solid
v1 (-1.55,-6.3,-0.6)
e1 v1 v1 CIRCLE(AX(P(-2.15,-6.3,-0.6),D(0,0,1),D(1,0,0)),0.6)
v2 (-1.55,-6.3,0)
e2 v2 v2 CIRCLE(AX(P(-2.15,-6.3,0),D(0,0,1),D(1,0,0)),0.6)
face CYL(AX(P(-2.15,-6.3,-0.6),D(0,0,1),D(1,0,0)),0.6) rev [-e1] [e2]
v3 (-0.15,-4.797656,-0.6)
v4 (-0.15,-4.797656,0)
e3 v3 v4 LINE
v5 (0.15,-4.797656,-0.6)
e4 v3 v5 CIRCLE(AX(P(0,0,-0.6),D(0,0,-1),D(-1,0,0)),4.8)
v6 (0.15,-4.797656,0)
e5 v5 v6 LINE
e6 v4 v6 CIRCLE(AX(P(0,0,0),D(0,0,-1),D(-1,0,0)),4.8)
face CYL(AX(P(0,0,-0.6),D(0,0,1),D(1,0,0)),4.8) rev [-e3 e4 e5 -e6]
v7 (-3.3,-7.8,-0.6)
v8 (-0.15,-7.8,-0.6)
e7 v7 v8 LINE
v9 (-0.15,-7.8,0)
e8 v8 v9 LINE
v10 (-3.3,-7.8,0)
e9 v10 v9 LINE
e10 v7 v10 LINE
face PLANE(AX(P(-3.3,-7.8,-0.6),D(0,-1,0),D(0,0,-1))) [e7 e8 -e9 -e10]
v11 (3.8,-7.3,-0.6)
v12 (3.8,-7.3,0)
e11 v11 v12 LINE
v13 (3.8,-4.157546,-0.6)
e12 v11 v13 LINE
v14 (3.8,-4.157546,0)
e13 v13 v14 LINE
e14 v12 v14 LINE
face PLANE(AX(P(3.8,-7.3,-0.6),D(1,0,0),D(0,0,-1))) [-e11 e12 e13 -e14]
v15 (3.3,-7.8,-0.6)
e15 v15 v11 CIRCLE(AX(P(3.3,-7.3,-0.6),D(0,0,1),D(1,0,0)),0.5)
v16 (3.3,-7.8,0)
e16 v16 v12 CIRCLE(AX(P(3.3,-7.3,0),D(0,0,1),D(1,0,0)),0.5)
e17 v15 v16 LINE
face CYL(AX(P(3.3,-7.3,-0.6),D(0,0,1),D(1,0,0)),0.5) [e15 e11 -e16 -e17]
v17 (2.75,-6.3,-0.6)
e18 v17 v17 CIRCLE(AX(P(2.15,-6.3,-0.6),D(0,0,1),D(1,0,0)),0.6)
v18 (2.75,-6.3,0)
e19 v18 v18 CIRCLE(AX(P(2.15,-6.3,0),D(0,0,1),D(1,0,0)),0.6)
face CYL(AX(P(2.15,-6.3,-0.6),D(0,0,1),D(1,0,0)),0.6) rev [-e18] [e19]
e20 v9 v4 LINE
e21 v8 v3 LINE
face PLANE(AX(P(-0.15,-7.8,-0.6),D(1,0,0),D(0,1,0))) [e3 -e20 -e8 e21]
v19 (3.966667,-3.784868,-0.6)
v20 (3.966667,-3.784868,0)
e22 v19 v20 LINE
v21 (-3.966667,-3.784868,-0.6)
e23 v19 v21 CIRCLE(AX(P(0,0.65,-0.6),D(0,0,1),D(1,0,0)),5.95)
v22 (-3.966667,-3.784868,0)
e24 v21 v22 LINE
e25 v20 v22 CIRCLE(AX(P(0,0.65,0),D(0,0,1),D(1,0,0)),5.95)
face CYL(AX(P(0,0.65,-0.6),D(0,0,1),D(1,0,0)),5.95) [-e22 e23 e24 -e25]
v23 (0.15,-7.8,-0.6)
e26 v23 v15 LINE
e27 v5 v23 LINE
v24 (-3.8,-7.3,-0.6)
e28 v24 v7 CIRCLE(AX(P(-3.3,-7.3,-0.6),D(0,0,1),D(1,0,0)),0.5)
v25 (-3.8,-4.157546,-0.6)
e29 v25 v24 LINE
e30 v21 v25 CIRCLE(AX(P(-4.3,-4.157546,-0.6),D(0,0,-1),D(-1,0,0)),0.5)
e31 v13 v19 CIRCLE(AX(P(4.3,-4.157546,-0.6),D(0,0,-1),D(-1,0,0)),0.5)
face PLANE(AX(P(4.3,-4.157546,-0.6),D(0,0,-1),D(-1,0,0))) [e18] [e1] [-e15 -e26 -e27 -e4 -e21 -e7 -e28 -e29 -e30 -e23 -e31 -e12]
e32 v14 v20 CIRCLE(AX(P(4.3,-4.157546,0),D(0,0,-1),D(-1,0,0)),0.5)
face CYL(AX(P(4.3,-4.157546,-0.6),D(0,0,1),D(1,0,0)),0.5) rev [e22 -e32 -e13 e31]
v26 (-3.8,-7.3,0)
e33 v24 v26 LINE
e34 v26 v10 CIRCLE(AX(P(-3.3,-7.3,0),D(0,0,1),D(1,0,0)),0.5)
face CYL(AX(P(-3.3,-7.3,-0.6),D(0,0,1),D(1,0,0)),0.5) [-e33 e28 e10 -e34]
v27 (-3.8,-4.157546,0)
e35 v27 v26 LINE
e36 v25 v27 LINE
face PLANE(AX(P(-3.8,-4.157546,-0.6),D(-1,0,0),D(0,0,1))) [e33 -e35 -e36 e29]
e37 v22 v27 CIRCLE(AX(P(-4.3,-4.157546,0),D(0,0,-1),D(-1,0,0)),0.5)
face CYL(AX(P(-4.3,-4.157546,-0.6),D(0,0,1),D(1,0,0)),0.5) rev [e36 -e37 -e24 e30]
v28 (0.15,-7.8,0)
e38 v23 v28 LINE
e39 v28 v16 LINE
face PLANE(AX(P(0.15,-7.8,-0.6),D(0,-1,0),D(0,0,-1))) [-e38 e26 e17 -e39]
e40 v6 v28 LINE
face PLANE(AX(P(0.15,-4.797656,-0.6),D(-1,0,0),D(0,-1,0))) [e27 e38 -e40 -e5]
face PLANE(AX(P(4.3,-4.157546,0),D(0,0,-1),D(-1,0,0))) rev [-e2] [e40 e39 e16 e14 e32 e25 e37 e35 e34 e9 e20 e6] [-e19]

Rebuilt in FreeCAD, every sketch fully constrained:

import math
import FreeCAD as App
import Part
import Sketcher

doc = App.newDocument("Part")
body = doc.addObject("PartDesign::Body", "Body")

# Sketch on XY plane
sketch1 = body.newObject("Sketcher::SketchObject", "Sketch")
sketch1.AttachmentSupport = (doc.getObject("XY_Plane"), [""])
sketch1.MapMode = "FlatFace"
sketch1.addGeometry(Part.LineSegment(App.Vector(-3.8, -4.157546, 0), App.Vector(-3.8, -7.3, 0)), False)
sketch1.addGeometry(Part.ArcOfCircle(Part.Circle(App.Vector(-3.3, -7.3, 0), App.Vector(0, 0, 1), 0.5), math.radians(180), math.radians(270)), False)
sketch1.addGeometry(Part.LineSegment(App.Vector(-3.3, -7.8, 0), App.Vector(-0.15, -7.8, 0)), False)
sketch1.addGeometry(Part.LineSegment(App.Vector(-0.15, -7.8, 0), App.Vector(-0.15, -4.797656, 0)), False)
sketch1.addGeometry(Part.ArcOfCircle(Part.Circle(App.Vector(0, 0, 0), App.Vector(0, 0, 1), 4.8), math.radians(-88.209215), math.radians(268.209215)), False)
sketch1.addGeometry(Part.LineSegment(App.Vector(0.15, -4.797656, 0), App.Vector(0.15, -7.8, 0)), False)
sketch1.addGeometry(Part.LineSegment(App.Vector(0.15, -7.8, 0), App.Vector(3.3, -7.8, 0)), False)
sketch1.addGeometry(Part.ArcOfCircle(Part.Circle(App.Vector(3.3, -7.3, 0), App.Vector(0, 0, 1), 0.5), math.radians(-90), math.radians(0)), False)
sketch1.addGeometry(Part.LineSegment(App.Vector(3.8, -7.3, 0), App.Vector(3.8, -4.157546, 0)), False)
sketch1.addGeometry(Part.ArcOfCircle(Part.Circle(App.Vector(4.3, -4.157546, 0), App.Vector(0, 0, 1), 0.5), math.radians(131.810315), math.radians(180)), False)
sketch1.addGeometry(Part.ArcOfCircle(Part.Circle(App.Vector(0, 0.65, 0), App.Vector(0, 0, 1), 5.95), math.radians(-48.189685), math.radians(228.189685)), False)
sketch1.addGeometry(Part.ArcOfCircle(Part.Circle(App.Vector(-4.3, -4.157546, 0), App.Vector(0, 0, 1), 0.5), math.radians(0), math.radians(48.189685)), False)
sketch1.addConstraint(Sketcher.Constraint("Tangent", 0, 2, 1, 1))
sketch1.addConstraint(Sketcher.Constraint("Tangent", 1, 2, 2, 1))
sketch1.addConstraint(Sketcher.Constraint("Coincident", 2, 2, 3, 1))
sketch1.addConstraint(Sketcher.Constraint("Coincident", 3, 2, 4, 2))
sketch1.addConstraint(Sketcher.Constraint("Coincident", 4, 1, 5, 1))
sketch1.addConstraint(Sketcher.Constraint("Coincident", 5, 2, 6, 1))
sketch1.addConstraint(Sketcher.Constraint("Tangent", 6, 2, 7, 1))
sketch1.addConstraint(Sketcher.Constraint("Tangent", 7, 2, 8, 1))
sketch1.addConstraint(Sketcher.Constraint("Tangent", 8, 2, 9, 2))
sketch1.addConstraint(Sketcher.Constraint("Tangent", 9, 1, 10, 1))
sketch1.addConstraint(Sketcher.Constraint("Tangent", 10, 2, 11, 2))
sketch1.addConstraint(Sketcher.Constraint("Tangent", 11, 1, 0, 1))
sketch1.addConstraint(Sketcher.Constraint("Vertical", 0))
sketch1.addConstraint(Sketcher.Constraint("Horizontal", 2))
sketch1.addConstraint(Sketcher.Constraint("Vertical", 3))
sketch1.addConstraint(Sketcher.Constraint("Vertical", 5))
sketch1.addConstraint(Sketcher.Constraint("Horizontal", 6))
sketch1.addConstraint(Sketcher.Constraint("Vertical", 8))
sketch1.addConstraint(Sketcher.Constraint("Coincident", 4, 3, -1, 1))
sketch1.addConstraint(Sketcher.Constraint("Equal", 1, 7))
sketch1.addConstraint(Sketcher.Constraint("Equal", 7, 9))
sketch1.addConstraint(Sketcher.Constraint("Equal", 9, 11))
sketch1.addConstraint(Sketcher.Constraint("Symmetric", 1, 3, 7, 3, -2))
sketch1.addConstraint(Sketcher.Constraint("PointOnObject", 10, 3, -2))
sketch1.addConstraint(Sketcher.Constraint("Horizontal", 3, 2, 4, 1))
sketch1.addConstraint(Sketcher.Constraint("Radius", 1, 0.5))
sketch1.addConstraint(Sketcher.Constraint("Radius", 4, 4.8))
sketch1.addConstraint(Sketcher.Constraint("Radius", 10, 5.95))
sketch1.addConstraint(Sketcher.Constraint("DistanceX", 2, 1, 2, 2, 3.15))
sketch1.addConstraint(Sketcher.Constraint("DistanceX", 1, 3, -1, 1, 3.3))
sketch1.addConstraint(Sketcher.Constraint("DistanceY", 1, 3, -1, 1, 7.3))
sketch1.addConstraint(Sketcher.Constraint("DistanceY", -1, 1, 10, 3, 0.65))
pad1 = body.newObject("PartDesign::Pad", "Pad")
pad1.Profile = sketch1
pad1.Length = 0.6
pad1.Reversed = True

# Sketch on XY plane
sketch2 = body.newObject("Sketcher::SketchObject", "Sketch001")
sketch2.AttachmentSupport = (doc.getObject("XY_Plane"), [""])
sketch2.MapMode = "FlatFace"
sketch2.addGeometry(Part.Circle(App.Vector(-2.15, -6.3, 0), App.Vector(0, 0, 1), 0.6), False)
sketch2.addGeometry(Part.Circle(App.Vector(2.15, -6.3, 0), App.Vector(0, 0, 1), 0.6), False)
sketch2.addConstraint(Sketcher.Constraint("Equal", 0, 1))
sketch2.addConstraint(Sketcher.Constraint("Symmetric", 0, 3, 1, 3, -2))
sketch2.addConstraint(Sketcher.Constraint("Diameter", 0, 1.2))
sketch2.addConstraint(Sketcher.Constraint("DistanceY", 0, 3, -1, 1, 6.3))
sketch2.addConstraint(Sketcher.Constraint("DistanceX", 0, 3, 1, 3, 4.3))
pocket1 = body.newObject("PartDesign::Pocket", "Pocket")
pocket1.Profile = sketch2
pocket1.Type = "ThroughAll"

doc.recompute()
